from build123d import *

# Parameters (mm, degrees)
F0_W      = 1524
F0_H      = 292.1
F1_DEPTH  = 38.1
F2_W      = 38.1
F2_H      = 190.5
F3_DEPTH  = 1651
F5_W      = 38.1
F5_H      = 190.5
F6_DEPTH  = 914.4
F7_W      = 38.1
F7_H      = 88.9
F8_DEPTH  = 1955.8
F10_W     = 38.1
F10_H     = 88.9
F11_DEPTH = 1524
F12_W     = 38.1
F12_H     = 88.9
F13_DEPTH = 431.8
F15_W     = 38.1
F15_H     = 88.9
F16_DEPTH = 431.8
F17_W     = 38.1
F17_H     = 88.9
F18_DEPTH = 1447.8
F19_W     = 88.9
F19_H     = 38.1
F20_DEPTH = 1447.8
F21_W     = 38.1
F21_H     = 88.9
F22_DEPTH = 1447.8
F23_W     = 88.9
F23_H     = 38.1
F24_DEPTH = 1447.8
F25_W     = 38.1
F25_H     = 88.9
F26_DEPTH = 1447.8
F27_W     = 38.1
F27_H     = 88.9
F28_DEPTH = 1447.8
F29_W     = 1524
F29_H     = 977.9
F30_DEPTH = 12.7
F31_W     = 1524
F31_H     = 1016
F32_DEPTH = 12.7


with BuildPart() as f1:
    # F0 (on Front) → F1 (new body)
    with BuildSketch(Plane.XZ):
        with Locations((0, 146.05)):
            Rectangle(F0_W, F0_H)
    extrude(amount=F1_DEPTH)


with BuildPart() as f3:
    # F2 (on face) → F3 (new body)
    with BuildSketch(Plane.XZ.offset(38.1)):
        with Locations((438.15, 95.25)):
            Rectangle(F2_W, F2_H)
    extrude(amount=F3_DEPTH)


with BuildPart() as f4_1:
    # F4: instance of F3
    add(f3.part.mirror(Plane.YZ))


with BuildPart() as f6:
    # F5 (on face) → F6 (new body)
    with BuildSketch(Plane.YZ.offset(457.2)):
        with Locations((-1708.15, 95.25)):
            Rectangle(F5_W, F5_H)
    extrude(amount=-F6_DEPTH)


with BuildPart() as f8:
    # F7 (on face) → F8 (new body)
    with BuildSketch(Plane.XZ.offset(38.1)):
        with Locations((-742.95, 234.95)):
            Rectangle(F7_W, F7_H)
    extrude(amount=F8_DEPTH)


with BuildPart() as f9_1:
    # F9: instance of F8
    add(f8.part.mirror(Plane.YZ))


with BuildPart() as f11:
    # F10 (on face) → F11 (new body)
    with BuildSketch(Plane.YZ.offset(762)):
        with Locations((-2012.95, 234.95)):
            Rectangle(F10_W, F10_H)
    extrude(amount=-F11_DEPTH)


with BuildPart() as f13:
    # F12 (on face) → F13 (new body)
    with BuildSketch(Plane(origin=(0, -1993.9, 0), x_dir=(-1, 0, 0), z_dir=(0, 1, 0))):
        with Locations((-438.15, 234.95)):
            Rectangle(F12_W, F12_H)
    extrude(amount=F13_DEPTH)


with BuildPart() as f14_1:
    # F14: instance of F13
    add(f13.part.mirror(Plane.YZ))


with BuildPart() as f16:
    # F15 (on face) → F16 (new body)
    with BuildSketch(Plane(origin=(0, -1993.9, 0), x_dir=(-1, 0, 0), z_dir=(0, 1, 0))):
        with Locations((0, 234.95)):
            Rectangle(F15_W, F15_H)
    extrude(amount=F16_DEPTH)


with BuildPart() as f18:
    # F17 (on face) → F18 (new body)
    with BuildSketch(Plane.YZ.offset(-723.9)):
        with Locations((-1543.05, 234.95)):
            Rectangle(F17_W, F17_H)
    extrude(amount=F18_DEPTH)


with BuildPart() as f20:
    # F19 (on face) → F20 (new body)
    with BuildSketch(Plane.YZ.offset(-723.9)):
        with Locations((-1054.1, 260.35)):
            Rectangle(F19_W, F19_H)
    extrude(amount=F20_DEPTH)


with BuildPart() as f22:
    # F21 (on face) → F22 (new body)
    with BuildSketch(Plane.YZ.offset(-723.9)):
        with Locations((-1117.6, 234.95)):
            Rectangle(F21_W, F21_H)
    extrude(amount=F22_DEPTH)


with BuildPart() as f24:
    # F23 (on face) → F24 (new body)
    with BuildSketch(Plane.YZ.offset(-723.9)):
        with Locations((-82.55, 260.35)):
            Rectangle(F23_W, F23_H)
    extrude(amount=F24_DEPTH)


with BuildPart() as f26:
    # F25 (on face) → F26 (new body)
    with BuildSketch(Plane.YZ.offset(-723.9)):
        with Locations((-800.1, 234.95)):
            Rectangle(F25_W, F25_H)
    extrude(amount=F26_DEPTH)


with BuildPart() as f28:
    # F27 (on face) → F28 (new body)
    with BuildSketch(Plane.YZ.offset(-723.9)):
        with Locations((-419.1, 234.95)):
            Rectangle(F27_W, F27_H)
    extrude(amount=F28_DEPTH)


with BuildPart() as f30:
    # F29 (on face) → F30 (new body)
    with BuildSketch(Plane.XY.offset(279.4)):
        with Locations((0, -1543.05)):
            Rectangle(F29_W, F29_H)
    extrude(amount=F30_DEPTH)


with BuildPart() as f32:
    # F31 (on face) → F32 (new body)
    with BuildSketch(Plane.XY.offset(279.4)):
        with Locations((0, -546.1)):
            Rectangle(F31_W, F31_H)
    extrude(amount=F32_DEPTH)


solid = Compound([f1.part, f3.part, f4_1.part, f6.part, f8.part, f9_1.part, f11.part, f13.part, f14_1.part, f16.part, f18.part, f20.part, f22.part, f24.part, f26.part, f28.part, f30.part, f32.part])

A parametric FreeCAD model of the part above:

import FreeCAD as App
import Part
import Sketcher

V = App.Vector
Q = App.Units.Quantity


def add_polygon(sketch, points):
    """Adds a closed chain of lines whose ends are joined by coincident constraints."""
    first, n = sketch.GeometryCount, len(points)
    for a, b in zip(points, points[1:] + points[:1]):
        sketch.addGeometry(Part.LineSegment(App.Vector(*a, 0), App.Vector(*b, 0)), False)
    for i in range(n):
        sketch.addConstraint(Sketcher.Constraint("Coincident", first + i, 2, first + (i + 1) % n, 1))

doc = App.newDocument("Part")
body = doc.addObject("PartDesign::Body", "Body")

# Sketch on XZ plane
sketch1 = body.newObject("Sketcher::SketchObject", "Sketch")
sketch1.AttachmentSupport = (doc.getObject("XZ_Plane"), [""])
sketch1.MapMode = "FlatFace"
add_polygon(sketch1, [(-762, 292.1), (-762, 0), (762, 0), (762, 292.1)])  # lines 0-3
sketch1.addConstraint([
    Sketcher.Constraint("Vertical", 0),
    Sketcher.Constraint("Horizontal", 1),
    Sketcher.Constraint("Vertical", 2),
    Sketcher.Constraint("Horizontal", 3),
    Sketcher.Constraint("Symmetric", 0, 2, 1, 2, -1, 1),
    Sketcher.Constraint("DistanceX", 1, 1, 1, 2, Q("60 in")),
    Sketcher.Constraint("DistanceY", 0, 2, 0, 1, Q("11.5 in")),
])
pad1 = body.newObject("PartDesign::Pad", "Pad")
pad1.Profile = sketch1
pad1.Length = Q("1.5 in")
body2 = doc.addObject("PartDesign::Body", "Body001")

# Sketch on XZ plane
sketch2 = body2.newObject("Sketcher::SketchObject", "Sketch001")
sketch2.AttachmentSupport = (doc.getObject("XZ_Plane001"), [""])
sketch2.MapMode = "FlatFace"
sketch2.AttachmentOffset = App.Placement(V(0, 0, 1.5 * 25.4), App.Rotation())
add_polygon(sketch2, [(419.1, 190.5), (419.1, 0), (457.2, 0), (457.2, 190.5)])  # lines 0-3
sketch2.addConstraint([
    Sketcher.Constraint("Vertical", 0),
    Sketcher.Constraint("Horizontal", 1),
    Sketcher.Constraint("Vertical", 2),
    Sketcher.Constraint("Horizontal", 3),
    Sketcher.Constraint("PointOnObject", 0, 2, -1),
    Sketcher.Constraint("DistanceX", 1, 1, 1, 2, Q("1.5 in")),
    Sketcher.Constraint("DistanceY", 0, 2, 0, 1, Q("7.5 in")),
    Sketcher.Constraint("DistanceX", -1, 1, 1, 2, Q("18 in")),
])
pad2 = body2.newObject("PartDesign::Pad", "Pad001")
pad2.Profile = sketch2
pad2.Length = Q("65 in")
body3 = doc.addObject("PartDesign::Body", "Body002")
doc.recompute()

mirroring = doc.addObject("Part::Mirroring", "Mirroring")
mirroring.Source = body2
mirroring.Base = V(0, 0, 0)
mirroring.Normal = V(1, 0, 0)
body3.BaseFeature = mirroring
doc.recompute()
body4 = doc.addObject("PartDesign::Body", "Body003")

# Sketch on YZ plane
sketch3 = body4.newObject("Sketcher::SketchObject", "Sketch002")
sketch3.AttachmentSupport = (doc.getObject("YZ_Plane003"), [""])
sketch3.MapMode = "FlatFace"
sketch3.AttachmentOffset = App.Placement(V(0, 0, 18 * 25.4), App.Rotation())
add_polygon(sketch3, [(-1727.2, 190.5), (-1727.2, 0), (-1689.1, 0), (-1689.1, 190.5)])  # lines 0-3
sketch3.addConstraint([
    Sketcher.Constraint("Vertical", 0),
    Sketcher.Constraint("Horizontal", 1),
    Sketcher.Constraint("Vertical", 2),
    Sketcher.Constraint("Horizontal", 3),
    Sketcher.Constraint("PointOnObject", 0, 2, -1),
    Sketcher.Constraint("DistanceX", 1, 1, 1, 2, Q("1.5 in")),
    Sketcher.Constraint("DistanceY", 0, 2, 0, 1, Q("7.5 in")),
    Sketcher.Constraint("DistanceX", 0, 2, -1, 1, Q("68 in")),
])
pad3 = body4.newObject("PartDesign::Pad", "Pad002")
pad3.Profile = sketch3
pad3.Length = Q("36 in")
pad3.Reversed = True
body5 = doc.addObject("PartDesign::Body", "Body004")

# Sketch on XZ plane
sketch4 = body5.newObject("Sketcher::SketchObject", "Sketch003")
sketch4.AttachmentSupport = (doc.getObject("XZ_Plane004"), [""])
sketch4.MapMode = "FlatFace"
sketch4.AttachmentOffset = App.Placement(V(0, 0, 1.5 * 25.4), App.Rotation())
add_polygon(sketch4, [(-762, 279.4), (-762, 190.5), (-723.9, 190.5), (-723.9, 279.4)])  # lines 0-3
sketch4.addConstraint([
    Sketcher.Constraint("Vertical", 0),
    Sketcher.Constraint("Horizontal", 1),
    Sketcher.Constraint("Vertical", 2),
    Sketcher.Constraint("Horizontal", 3),
    Sketcher.Constraint("DistanceX", 1, 1, 1, 2, Q("1.5 in")),
    Sketcher.Constraint("DistanceY", 0, 2, 0, 1, Q("3.5 in")),
    Sketcher.Constraint("DistanceX", 0, 2, -1, 1, Q("30 in")),
    Sketcher.Constraint("DistanceY", -1, 1, 2, 2, Q("11 in")),
])
pad4 = body5.newObject("PartDesign::Pad", "Pad003")
pad4.Profile = sketch4
pad4.Length = Q("77 in")
body6 = doc.addObject("PartDesign::Body", "Body005")
doc.recompute()

mirroring2 = doc.addObject("Part::Mirroring", "Mirroring001")
mirroring2.Source = body5
mirroring2.Base = V(0, 0, 0)
mirroring2.Normal = V(1, 0, 0)
body6.BaseFeature = mirroring2
doc.recompute()
body7 = doc.addObject("PartDesign::Body", "Body006")

# Sketch on YZ plane
sketch5 = body7.newObject("Sketcher::SketchObject", "Sketch004")
sketch5.AttachmentSupport = (doc.getObject("YZ_Plane006"), [""])
sketch5.MapMode = "FlatFace"
sketch5.AttachmentOffset = App.Placement(V(0, 0, 30 * 25.4), App.Rotation())
add_polygon(sketch5, [(-2032, 279.4), (-2032, 190.5), (-1993.9, 190.5), (-1993.9, 279.4)])  # lines 0-3
sketch5.addConstraint([
    Sketcher.Constraint("Vertical", 0),
    Sketcher.Constraint("Horizontal", 1),
    Sketcher.Constraint("Vertical", 2),
    Sketcher.Constraint("Horizontal", 3),
    Sketcher.Constraint("DistanceX", 1, 1, 1, 2, Q("1.5 in")),
    Sketcher.Constraint("DistanceY", 0, 2, 0, 1, Q("3.5 in")),
    Sketcher.Constraint("DistanceX", 0, 2, -1, 1, Q("80 in")),
    Sketcher.Constraint("DistanceY", -1, 1, 2, 2, Q("11 in")),
])
pad5 = body7.newObject("PartDesign::Pad", "Pad004")
pad5.Profile = sketch5
pad5.Length = Q("60 in")
pad5.Reversed = True
body8 = doc.addObject("PartDesign::Body", "Body007")

# Sketch on XZ plane
sketch6 = body8.newObject("Sketcher::SketchObject", "Sketch005")
sketch6.AttachmentSupport = (doc.getObject("XZ_Plane007"), [""])
sketch6.MapMode = "FlatFace"
sketch6.AttachmentOffset = App.Placement(V(0, 0, 78.5 * 25.4), App.Rotation())
add_polygon(sketch6, [(457.2, 279.4), (457.2, 190.5), (419.1, 190.5), (419.1, 279.4)])  # lines 0-3
sketch6.addConstraint([
    Sketcher.Constraint("Vertical", 0),
    Sketcher.Constraint("Horizontal", 1),
    Sketcher.Constraint("Vertical", 2),
    Sketcher.Constraint("Horizontal", 3),
    Sketcher.Constraint("DistanceX", 1, 2, 1, 1, Q("1.5 in")),
    Sketcher.Constraint("DistanceY", 0, 2, 0, 1, Q("3.5 in")),
    Sketcher.Constraint("DistanceX", -1, 1, 0, 2, Q("18 in")),
    Sketcher.Constraint("DistanceY", -1, 1, 2, 2, Q("11 in")),
])
pad6 = body8.newObject("PartDesign::Pad", "Pad005")
pad6.Profile = sketch6
pad6.Length = Q("17 in")
pad6.Reversed = True
body9 = doc.addObject("PartDesign::Body", "Body008")
doc.recompute()

mirroring3 = doc.addObject("Part::Mirroring", "Mirroring002")
mirroring3.Source = body8
mirroring3.Base = V(0, 0, 0)
mirroring3.Normal = V(1, 0, 0)
body9.BaseFeature = mirroring3
doc.recompute()
body10 = doc.addObject("PartDesign::Body", "Body009")

# Sketch on XZ plane
sketch7 = body10.newObject("Sketcher::SketchObject", "Sketch006")
sketch7.AttachmentSupport = (doc.getObject("XZ_Plane009"), [""])
sketch7.MapMode = "FlatFace"
sketch7.AttachmentOffset = App.Placement(V(0, 0, 78.5 * 25.4), App.Rotation())
add_polygon(sketch7, [(19.05, 279.4), (19.05, 190.5), (-19.05, 190.5), (-19.05, 279.4)])  # lines 0-3
sketch7.addConstraint([
    Sketcher.Constraint("Vertical", 0),
    Sketcher.Constraint("Horizontal", 1),
    Sketcher.Constraint("Vertical", 2),
    Sketcher.Constraint("Horizontal", 3),
    Sketcher.Constraint("DistanceX", 1, 2, 1, 1, Q("1.5 in")),
    Sketcher.Constraint("DistanceY", 0, 2, 0, 1, Q("3.5 in")),
    Sketcher.Constraint("DistanceY", -1, 1, 2, 2, Q("11 in")),
    Sketcher.Constraint("DistanceX", -1, 1, 0, 2, Q("0.75 in")),
])
pad7 = body10.newObject("PartDesign::Pad", "Pad006")
pad7.Profile = sketch7
pad7.Length = Q("17 in")
pad7.Reversed = True
body11 = doc.addObject("PartDesign::Body", "Body010")

# Sketch on YZ plane
sketch8 = body11.newObject("Sketcher::SketchObject", "Sketch007")
sketch8.AttachmentSupport = (doc.getObject("YZ_Plane010"), [""])
sketch8.MapMode = "FlatFace"
sketch8.AttachmentOffset = App.Placement(V(0, 0, -28.5 * 25.4), App.Rotation())
add_polygon(sketch8, [(-1562.1, 279.4), (-1562.1, 190.5), (-1524, 190.5), (-1524, 279.4)])  # lines 0-3
sketch8.addConstraint([
    Sketcher.Constraint("Vertical", 0),
    Sketcher.Constraint("Horizontal", 1),
    Sketcher.Constraint("Vertical", 2),
    Sketcher.Constraint("Horizontal", 3),
    Sketcher.Constraint("DistanceX", 1, 1, 1, 2, Q("1.5 in")),
    Sketcher.Constraint("DistanceY", 0, 2, 0, 1, Q("3.5 in")),
    Sketcher.Constraint("DistanceX", 1, 2, -1, 1, Q("60 in")),
    Sketcher.Constraint("DistanceY", -1, 1, 2, 2, Q("11 in")),
])
pad8 = body11.newObject("PartDesign::Pad", "Pad007")
pad8.Profile = sketch8
pad8.Length = Q("57 in")
body12 = doc.addObject("PartDesign::Body", "Body011")

# Sketch on YZ plane
sketch9 = body12.newObject("Sketcher::SketchObject", "Sketch008")
sketch9.AttachmentSupport = (doc.getObject("YZ_Plane011"), [""])
sketch9.MapMode = "FlatFace"
sketch9.AttachmentOffset = App.Placement(V(0, 0, -28.5 * 25.4), App.Rotation())
add_polygon(sketch9, [(-1098.55, 279.4), (-1098.55, 241.3), (-1009.65, 241.3), (-1009.65, 279.4)])  # lines 0-3
sketch9.addConstraint([
    Sketcher.Constraint("Vertical", 0),
    Sketcher.Constraint("Horizontal", 1),
    Sketcher.Constraint("Vertical", 2),
    Sketcher.Constraint("Horizontal", 3),
    Sketcher.Constraint("DistanceX", 1, 1, 1, 2, Q("3.5 in")),
    Sketcher.Constraint("DistanceY", 0, 2, 0, 1, Q("1.5 in")),
    Sketcher.Constraint("DistanceY", -1, 1, 2, 2, Q("11 in")),
    Sketcher.Constraint("DistanceX", 0, 2, -1, 1, Q("43.25 in")),
])
pad9 = body12.newObject("PartDesign::Pad", "Pad008")
pad9.Profile = sketch9
pad9.Length = Q("57 in")
body13 = doc.addObject("PartDesign::Body", "Body012")

# Sketch on YZ plane
sketch10 = body13.newObject("Sketcher::SketchObject", "Sketch009")
sketch10.AttachmentSupport = (doc.getObject("YZ_Plane012"), [""])
sketch10.MapMode = "FlatFace"
sketch10.AttachmentOffset = App.Placement(V(0, 0, -28.5 * 25.4), App.Rotation())
add_polygon(sketch10, [(-1136.65, 279.4), (-1136.65, 190.5), (-1098.55, 190.5), (-1098.55, 279.4)])  # lines 0-3
sketch10.addConstraint([
    Sketcher.Constraint("Vertical", 0),
    Sketcher.Constraint("Horizontal", 1),
    Sketcher.Constraint("Vertical", 2),
    Sketcher.Constraint("Horizontal", 3),
    Sketcher.Constraint("DistanceX", 1, 1, 1, 2, Q("1.5 in")),
    Sketcher.Constraint("DistanceY", 0, 2, 0, 1, Q("3.5 in")),
    Sketcher.Constraint("DistanceY", -1, 1, 2, 2, Q("11 in")),
    Sketcher.Constraint("DistanceX", 0, 2, -1, 1, Q("44.75 in")),
])
pad10 = body13.newObject("PartDesign::Pad", "Pad009")
pad10.Profile = sketch10
pad10.Length = Q("57 in")
body14 = doc.addObject("PartDesign::Body", "Body013")

# Sketch on YZ plane
sketch11 = body14.newObject("Sketcher::SketchObject", "Sketch010")
sketch11.AttachmentSupport = (doc.getObject("YZ_Plane013"), [""])
sketch11.MapMode = "FlatFace"
sketch11.AttachmentOffset = App.Placement(V(0, 0, -28.5 * 25.4), App.Rotation())
add_polygon(sketch11, [(-127, 279.4), (-127, 241.3), (-38.1, 241.3), (-38.1, 279.4)])  # lines 0-3
sketch11.addConstraint([
    Sketcher.Constraint("Vertical", 0),
    Sketcher.Constraint("Horizontal", 1),
    Sketcher.Constraint("Vertical", 2),
    Sketcher.Constraint("Horizontal", 3),
    Sketcher.Constraint("DistanceX", 1, 1, 1, 2, Q("3.5 in")),
    Sketcher.Constraint("DistanceY", 0, 2, 0, 1, Q("1.5 in")),
    Sketcher.Constraint("DistanceX", 0, 2, -1, 1, Q("5 in")),
    Sketcher.Constraint("DistanceY", -1, 1, 2, 2, Q("11 in")),
])
pad11 = body14.newObject("PartDesign::Pad", "Pad010")
pad11.Profile = sketch11
pad11.Length = Q("57 in")
body15 = doc.addObject("PartDesign::Body", "Body014")

# Sketch on YZ plane
sketch12 = body15.newObject("Sketcher::SketchObject", "Sketch011")
sketch12.AttachmentSupport = (doc.getObject("YZ_Plane014"), [""])
sketch12.MapMode = "FlatFace"
sketch12.AttachmentOffset = App.Placement(V(0, 0, -28.5 * 25.4), App.Rotation())
add_polygon(sketch12, [(-819.15, 279.4), (-819.15, 190.5), (-781.05, 190.5), (-781.05, 279.4)])  # lines 0-3
sketch12.addConstraint([
    Sketcher.Constraint("Vertical", 0),
    Sketcher.Constraint("Horizontal", 1),
    Sketcher.Constraint("Vertical", 2),
    Sketcher.Constraint("Horizontal", 3),
    Sketcher.Constraint("DistanceX", 1, 1, 1, 2, Q("1.5 in")),
    Sketcher.Constraint("DistanceY", 0, 2, 0, 1, Q("3.5 in")),
    Sketcher.Constraint("DistanceY", -1, 1, 2, 2, Q("11 in")),
    Sketcher.Constraint("DistanceX", 0, 2, -1, 1, Q("32.25 in")),
])
pad12 = body15.newObject("PartDesign::Pad", "Pad011")
pad12.Profile = sketch12
pad12.Length = Q("57 in")
body16 = doc.addObject("PartDesign::Body", "Body015")

# Sketch on YZ plane
sketch13 = body16.newObject("Sketcher::SketchObject", "Sketch012")
sketch13.AttachmentSupport = (doc.getObject("YZ_Plane015"), [""])
sketch13.MapMode = "FlatFace"
sketch13.AttachmentOffset = App.Placement(V(0, 0, -28.5 * 25.4), App.Rotation())
add_polygon(sketch13, [(-438.15, 279.4), (-438.15, 190.5), (-400.05, 190.5), (-400.05, 279.4)])  # lines 0-3
sketch13.addConstraint([
    Sketcher.Constraint("Vertical", 0),
    Sketcher.Constraint("Horizontal", 1),
    Sketcher.Constraint("Vertical", 2),
    Sketcher.Constraint("Horizontal", 3),
    Sketcher.Constraint("DistanceX", 1, 1, 1, 2, Q("1.5 in")),
    Sketcher.Constraint("DistanceY", 0, 2, 0, 1, Q("3.5 in")),
    Sketcher.Constraint("DistanceY", -1, 1, 2, 2, Q("11 in")),
    Sketcher.Constraint("DistanceX", 0, 2, -1, 1, Q("17.25 in")),
])
pad13 = body16.newObject("PartDesign::Pad", "Pad012")
pad13.Profile = sketch13
pad13.Length = Q("57 in")
body17 = doc.addObject("PartDesign::Body", "Body016")

# Sketch on XY plane
sketch14 = body17.newObject("Sketcher::SketchObject", "Sketch013")
sketch14.AttachmentSupport = (doc.getObject("XY_Plane016"), [""])
sketch14.MapMode = "FlatFace"
sketch14.AttachmentOffset = App.Placement(V(0, 0, 11 * 25.4), App.Rotation())
add_polygon(sketch14, [(-762, -1054.1), (-762, -2032), (762, -2032), (762, -1054.1)])  # lines 0-3
sketch14.addConstraint([
    Sketcher.Constraint("Vertical", 0),
    Sketcher.Constraint("Horizontal", 1),
    Sketcher.Constraint("Vertical", 2),
    Sketcher.Constraint("Horizontal", 3),
    Sketcher.Constraint("DistanceX", 1, 1, 1, 2, Q("60 in")),
    Sketcher.Constraint("DistanceY", 0, 2, 0, 1, Q("38.5 in")),
    Sketcher.Constraint("DistanceX", 0, 2, -1, 1, Q("30 in")),
    Sketcher.Constraint("DistanceY", 0, 2, -1, 1, Q("80 in")),
])
pad14 = body17.newObject("PartDesign::Pad", "Pad013")
pad14.Profile = sketch14
pad14.Length = Q("0.5 in")
body18 = doc.addObject("PartDesign::Body", "Body017")

# Sketch on XY plane
sketch15 = body18.newObject("Sketcher::SketchObject", "Sketch014")
sketch15.AttachmentSupport = (doc.getObject("XY_Plane017"), [""])
sketch15.MapMode = "FlatFace"
sketch15.AttachmentOffset = App.Placement(V(0, 0, 11 * 25.4), App.Rotation())
add_polygon(sketch15, [(-762, -38.1), (-762, -1054.1), (762, -1054.1), (762, -38.1)])  # lines 0-3
sketch15.addConstraint([
    Sketcher.Constraint("Vertical", 0),
    Sketcher.Constraint("Horizontal", 1),
    Sketcher.Constraint("Vertical", 2),
    Sketcher.Constraint("Horizontal", 3),
    Sketcher.Constraint("DistanceX", 1, 1, 1, 2, Q("60 in")),
    Sketcher.Constraint("DistanceY", 0, 2, 0, 1, Q("40 in")),
    Sketcher.Constraint("DistanceX", 0, 2, -1, 1, Q("30 in")),
    Sketcher.Constraint("DistanceY", 0, 2, -1, 1, Q("41.5 in")),
])
pad15 = body18.newObject("PartDesign::Pad", "Pad014")
pad15.Profile = sketch15
pad15.Length = Q("0.5 in")

doc.recompute()
